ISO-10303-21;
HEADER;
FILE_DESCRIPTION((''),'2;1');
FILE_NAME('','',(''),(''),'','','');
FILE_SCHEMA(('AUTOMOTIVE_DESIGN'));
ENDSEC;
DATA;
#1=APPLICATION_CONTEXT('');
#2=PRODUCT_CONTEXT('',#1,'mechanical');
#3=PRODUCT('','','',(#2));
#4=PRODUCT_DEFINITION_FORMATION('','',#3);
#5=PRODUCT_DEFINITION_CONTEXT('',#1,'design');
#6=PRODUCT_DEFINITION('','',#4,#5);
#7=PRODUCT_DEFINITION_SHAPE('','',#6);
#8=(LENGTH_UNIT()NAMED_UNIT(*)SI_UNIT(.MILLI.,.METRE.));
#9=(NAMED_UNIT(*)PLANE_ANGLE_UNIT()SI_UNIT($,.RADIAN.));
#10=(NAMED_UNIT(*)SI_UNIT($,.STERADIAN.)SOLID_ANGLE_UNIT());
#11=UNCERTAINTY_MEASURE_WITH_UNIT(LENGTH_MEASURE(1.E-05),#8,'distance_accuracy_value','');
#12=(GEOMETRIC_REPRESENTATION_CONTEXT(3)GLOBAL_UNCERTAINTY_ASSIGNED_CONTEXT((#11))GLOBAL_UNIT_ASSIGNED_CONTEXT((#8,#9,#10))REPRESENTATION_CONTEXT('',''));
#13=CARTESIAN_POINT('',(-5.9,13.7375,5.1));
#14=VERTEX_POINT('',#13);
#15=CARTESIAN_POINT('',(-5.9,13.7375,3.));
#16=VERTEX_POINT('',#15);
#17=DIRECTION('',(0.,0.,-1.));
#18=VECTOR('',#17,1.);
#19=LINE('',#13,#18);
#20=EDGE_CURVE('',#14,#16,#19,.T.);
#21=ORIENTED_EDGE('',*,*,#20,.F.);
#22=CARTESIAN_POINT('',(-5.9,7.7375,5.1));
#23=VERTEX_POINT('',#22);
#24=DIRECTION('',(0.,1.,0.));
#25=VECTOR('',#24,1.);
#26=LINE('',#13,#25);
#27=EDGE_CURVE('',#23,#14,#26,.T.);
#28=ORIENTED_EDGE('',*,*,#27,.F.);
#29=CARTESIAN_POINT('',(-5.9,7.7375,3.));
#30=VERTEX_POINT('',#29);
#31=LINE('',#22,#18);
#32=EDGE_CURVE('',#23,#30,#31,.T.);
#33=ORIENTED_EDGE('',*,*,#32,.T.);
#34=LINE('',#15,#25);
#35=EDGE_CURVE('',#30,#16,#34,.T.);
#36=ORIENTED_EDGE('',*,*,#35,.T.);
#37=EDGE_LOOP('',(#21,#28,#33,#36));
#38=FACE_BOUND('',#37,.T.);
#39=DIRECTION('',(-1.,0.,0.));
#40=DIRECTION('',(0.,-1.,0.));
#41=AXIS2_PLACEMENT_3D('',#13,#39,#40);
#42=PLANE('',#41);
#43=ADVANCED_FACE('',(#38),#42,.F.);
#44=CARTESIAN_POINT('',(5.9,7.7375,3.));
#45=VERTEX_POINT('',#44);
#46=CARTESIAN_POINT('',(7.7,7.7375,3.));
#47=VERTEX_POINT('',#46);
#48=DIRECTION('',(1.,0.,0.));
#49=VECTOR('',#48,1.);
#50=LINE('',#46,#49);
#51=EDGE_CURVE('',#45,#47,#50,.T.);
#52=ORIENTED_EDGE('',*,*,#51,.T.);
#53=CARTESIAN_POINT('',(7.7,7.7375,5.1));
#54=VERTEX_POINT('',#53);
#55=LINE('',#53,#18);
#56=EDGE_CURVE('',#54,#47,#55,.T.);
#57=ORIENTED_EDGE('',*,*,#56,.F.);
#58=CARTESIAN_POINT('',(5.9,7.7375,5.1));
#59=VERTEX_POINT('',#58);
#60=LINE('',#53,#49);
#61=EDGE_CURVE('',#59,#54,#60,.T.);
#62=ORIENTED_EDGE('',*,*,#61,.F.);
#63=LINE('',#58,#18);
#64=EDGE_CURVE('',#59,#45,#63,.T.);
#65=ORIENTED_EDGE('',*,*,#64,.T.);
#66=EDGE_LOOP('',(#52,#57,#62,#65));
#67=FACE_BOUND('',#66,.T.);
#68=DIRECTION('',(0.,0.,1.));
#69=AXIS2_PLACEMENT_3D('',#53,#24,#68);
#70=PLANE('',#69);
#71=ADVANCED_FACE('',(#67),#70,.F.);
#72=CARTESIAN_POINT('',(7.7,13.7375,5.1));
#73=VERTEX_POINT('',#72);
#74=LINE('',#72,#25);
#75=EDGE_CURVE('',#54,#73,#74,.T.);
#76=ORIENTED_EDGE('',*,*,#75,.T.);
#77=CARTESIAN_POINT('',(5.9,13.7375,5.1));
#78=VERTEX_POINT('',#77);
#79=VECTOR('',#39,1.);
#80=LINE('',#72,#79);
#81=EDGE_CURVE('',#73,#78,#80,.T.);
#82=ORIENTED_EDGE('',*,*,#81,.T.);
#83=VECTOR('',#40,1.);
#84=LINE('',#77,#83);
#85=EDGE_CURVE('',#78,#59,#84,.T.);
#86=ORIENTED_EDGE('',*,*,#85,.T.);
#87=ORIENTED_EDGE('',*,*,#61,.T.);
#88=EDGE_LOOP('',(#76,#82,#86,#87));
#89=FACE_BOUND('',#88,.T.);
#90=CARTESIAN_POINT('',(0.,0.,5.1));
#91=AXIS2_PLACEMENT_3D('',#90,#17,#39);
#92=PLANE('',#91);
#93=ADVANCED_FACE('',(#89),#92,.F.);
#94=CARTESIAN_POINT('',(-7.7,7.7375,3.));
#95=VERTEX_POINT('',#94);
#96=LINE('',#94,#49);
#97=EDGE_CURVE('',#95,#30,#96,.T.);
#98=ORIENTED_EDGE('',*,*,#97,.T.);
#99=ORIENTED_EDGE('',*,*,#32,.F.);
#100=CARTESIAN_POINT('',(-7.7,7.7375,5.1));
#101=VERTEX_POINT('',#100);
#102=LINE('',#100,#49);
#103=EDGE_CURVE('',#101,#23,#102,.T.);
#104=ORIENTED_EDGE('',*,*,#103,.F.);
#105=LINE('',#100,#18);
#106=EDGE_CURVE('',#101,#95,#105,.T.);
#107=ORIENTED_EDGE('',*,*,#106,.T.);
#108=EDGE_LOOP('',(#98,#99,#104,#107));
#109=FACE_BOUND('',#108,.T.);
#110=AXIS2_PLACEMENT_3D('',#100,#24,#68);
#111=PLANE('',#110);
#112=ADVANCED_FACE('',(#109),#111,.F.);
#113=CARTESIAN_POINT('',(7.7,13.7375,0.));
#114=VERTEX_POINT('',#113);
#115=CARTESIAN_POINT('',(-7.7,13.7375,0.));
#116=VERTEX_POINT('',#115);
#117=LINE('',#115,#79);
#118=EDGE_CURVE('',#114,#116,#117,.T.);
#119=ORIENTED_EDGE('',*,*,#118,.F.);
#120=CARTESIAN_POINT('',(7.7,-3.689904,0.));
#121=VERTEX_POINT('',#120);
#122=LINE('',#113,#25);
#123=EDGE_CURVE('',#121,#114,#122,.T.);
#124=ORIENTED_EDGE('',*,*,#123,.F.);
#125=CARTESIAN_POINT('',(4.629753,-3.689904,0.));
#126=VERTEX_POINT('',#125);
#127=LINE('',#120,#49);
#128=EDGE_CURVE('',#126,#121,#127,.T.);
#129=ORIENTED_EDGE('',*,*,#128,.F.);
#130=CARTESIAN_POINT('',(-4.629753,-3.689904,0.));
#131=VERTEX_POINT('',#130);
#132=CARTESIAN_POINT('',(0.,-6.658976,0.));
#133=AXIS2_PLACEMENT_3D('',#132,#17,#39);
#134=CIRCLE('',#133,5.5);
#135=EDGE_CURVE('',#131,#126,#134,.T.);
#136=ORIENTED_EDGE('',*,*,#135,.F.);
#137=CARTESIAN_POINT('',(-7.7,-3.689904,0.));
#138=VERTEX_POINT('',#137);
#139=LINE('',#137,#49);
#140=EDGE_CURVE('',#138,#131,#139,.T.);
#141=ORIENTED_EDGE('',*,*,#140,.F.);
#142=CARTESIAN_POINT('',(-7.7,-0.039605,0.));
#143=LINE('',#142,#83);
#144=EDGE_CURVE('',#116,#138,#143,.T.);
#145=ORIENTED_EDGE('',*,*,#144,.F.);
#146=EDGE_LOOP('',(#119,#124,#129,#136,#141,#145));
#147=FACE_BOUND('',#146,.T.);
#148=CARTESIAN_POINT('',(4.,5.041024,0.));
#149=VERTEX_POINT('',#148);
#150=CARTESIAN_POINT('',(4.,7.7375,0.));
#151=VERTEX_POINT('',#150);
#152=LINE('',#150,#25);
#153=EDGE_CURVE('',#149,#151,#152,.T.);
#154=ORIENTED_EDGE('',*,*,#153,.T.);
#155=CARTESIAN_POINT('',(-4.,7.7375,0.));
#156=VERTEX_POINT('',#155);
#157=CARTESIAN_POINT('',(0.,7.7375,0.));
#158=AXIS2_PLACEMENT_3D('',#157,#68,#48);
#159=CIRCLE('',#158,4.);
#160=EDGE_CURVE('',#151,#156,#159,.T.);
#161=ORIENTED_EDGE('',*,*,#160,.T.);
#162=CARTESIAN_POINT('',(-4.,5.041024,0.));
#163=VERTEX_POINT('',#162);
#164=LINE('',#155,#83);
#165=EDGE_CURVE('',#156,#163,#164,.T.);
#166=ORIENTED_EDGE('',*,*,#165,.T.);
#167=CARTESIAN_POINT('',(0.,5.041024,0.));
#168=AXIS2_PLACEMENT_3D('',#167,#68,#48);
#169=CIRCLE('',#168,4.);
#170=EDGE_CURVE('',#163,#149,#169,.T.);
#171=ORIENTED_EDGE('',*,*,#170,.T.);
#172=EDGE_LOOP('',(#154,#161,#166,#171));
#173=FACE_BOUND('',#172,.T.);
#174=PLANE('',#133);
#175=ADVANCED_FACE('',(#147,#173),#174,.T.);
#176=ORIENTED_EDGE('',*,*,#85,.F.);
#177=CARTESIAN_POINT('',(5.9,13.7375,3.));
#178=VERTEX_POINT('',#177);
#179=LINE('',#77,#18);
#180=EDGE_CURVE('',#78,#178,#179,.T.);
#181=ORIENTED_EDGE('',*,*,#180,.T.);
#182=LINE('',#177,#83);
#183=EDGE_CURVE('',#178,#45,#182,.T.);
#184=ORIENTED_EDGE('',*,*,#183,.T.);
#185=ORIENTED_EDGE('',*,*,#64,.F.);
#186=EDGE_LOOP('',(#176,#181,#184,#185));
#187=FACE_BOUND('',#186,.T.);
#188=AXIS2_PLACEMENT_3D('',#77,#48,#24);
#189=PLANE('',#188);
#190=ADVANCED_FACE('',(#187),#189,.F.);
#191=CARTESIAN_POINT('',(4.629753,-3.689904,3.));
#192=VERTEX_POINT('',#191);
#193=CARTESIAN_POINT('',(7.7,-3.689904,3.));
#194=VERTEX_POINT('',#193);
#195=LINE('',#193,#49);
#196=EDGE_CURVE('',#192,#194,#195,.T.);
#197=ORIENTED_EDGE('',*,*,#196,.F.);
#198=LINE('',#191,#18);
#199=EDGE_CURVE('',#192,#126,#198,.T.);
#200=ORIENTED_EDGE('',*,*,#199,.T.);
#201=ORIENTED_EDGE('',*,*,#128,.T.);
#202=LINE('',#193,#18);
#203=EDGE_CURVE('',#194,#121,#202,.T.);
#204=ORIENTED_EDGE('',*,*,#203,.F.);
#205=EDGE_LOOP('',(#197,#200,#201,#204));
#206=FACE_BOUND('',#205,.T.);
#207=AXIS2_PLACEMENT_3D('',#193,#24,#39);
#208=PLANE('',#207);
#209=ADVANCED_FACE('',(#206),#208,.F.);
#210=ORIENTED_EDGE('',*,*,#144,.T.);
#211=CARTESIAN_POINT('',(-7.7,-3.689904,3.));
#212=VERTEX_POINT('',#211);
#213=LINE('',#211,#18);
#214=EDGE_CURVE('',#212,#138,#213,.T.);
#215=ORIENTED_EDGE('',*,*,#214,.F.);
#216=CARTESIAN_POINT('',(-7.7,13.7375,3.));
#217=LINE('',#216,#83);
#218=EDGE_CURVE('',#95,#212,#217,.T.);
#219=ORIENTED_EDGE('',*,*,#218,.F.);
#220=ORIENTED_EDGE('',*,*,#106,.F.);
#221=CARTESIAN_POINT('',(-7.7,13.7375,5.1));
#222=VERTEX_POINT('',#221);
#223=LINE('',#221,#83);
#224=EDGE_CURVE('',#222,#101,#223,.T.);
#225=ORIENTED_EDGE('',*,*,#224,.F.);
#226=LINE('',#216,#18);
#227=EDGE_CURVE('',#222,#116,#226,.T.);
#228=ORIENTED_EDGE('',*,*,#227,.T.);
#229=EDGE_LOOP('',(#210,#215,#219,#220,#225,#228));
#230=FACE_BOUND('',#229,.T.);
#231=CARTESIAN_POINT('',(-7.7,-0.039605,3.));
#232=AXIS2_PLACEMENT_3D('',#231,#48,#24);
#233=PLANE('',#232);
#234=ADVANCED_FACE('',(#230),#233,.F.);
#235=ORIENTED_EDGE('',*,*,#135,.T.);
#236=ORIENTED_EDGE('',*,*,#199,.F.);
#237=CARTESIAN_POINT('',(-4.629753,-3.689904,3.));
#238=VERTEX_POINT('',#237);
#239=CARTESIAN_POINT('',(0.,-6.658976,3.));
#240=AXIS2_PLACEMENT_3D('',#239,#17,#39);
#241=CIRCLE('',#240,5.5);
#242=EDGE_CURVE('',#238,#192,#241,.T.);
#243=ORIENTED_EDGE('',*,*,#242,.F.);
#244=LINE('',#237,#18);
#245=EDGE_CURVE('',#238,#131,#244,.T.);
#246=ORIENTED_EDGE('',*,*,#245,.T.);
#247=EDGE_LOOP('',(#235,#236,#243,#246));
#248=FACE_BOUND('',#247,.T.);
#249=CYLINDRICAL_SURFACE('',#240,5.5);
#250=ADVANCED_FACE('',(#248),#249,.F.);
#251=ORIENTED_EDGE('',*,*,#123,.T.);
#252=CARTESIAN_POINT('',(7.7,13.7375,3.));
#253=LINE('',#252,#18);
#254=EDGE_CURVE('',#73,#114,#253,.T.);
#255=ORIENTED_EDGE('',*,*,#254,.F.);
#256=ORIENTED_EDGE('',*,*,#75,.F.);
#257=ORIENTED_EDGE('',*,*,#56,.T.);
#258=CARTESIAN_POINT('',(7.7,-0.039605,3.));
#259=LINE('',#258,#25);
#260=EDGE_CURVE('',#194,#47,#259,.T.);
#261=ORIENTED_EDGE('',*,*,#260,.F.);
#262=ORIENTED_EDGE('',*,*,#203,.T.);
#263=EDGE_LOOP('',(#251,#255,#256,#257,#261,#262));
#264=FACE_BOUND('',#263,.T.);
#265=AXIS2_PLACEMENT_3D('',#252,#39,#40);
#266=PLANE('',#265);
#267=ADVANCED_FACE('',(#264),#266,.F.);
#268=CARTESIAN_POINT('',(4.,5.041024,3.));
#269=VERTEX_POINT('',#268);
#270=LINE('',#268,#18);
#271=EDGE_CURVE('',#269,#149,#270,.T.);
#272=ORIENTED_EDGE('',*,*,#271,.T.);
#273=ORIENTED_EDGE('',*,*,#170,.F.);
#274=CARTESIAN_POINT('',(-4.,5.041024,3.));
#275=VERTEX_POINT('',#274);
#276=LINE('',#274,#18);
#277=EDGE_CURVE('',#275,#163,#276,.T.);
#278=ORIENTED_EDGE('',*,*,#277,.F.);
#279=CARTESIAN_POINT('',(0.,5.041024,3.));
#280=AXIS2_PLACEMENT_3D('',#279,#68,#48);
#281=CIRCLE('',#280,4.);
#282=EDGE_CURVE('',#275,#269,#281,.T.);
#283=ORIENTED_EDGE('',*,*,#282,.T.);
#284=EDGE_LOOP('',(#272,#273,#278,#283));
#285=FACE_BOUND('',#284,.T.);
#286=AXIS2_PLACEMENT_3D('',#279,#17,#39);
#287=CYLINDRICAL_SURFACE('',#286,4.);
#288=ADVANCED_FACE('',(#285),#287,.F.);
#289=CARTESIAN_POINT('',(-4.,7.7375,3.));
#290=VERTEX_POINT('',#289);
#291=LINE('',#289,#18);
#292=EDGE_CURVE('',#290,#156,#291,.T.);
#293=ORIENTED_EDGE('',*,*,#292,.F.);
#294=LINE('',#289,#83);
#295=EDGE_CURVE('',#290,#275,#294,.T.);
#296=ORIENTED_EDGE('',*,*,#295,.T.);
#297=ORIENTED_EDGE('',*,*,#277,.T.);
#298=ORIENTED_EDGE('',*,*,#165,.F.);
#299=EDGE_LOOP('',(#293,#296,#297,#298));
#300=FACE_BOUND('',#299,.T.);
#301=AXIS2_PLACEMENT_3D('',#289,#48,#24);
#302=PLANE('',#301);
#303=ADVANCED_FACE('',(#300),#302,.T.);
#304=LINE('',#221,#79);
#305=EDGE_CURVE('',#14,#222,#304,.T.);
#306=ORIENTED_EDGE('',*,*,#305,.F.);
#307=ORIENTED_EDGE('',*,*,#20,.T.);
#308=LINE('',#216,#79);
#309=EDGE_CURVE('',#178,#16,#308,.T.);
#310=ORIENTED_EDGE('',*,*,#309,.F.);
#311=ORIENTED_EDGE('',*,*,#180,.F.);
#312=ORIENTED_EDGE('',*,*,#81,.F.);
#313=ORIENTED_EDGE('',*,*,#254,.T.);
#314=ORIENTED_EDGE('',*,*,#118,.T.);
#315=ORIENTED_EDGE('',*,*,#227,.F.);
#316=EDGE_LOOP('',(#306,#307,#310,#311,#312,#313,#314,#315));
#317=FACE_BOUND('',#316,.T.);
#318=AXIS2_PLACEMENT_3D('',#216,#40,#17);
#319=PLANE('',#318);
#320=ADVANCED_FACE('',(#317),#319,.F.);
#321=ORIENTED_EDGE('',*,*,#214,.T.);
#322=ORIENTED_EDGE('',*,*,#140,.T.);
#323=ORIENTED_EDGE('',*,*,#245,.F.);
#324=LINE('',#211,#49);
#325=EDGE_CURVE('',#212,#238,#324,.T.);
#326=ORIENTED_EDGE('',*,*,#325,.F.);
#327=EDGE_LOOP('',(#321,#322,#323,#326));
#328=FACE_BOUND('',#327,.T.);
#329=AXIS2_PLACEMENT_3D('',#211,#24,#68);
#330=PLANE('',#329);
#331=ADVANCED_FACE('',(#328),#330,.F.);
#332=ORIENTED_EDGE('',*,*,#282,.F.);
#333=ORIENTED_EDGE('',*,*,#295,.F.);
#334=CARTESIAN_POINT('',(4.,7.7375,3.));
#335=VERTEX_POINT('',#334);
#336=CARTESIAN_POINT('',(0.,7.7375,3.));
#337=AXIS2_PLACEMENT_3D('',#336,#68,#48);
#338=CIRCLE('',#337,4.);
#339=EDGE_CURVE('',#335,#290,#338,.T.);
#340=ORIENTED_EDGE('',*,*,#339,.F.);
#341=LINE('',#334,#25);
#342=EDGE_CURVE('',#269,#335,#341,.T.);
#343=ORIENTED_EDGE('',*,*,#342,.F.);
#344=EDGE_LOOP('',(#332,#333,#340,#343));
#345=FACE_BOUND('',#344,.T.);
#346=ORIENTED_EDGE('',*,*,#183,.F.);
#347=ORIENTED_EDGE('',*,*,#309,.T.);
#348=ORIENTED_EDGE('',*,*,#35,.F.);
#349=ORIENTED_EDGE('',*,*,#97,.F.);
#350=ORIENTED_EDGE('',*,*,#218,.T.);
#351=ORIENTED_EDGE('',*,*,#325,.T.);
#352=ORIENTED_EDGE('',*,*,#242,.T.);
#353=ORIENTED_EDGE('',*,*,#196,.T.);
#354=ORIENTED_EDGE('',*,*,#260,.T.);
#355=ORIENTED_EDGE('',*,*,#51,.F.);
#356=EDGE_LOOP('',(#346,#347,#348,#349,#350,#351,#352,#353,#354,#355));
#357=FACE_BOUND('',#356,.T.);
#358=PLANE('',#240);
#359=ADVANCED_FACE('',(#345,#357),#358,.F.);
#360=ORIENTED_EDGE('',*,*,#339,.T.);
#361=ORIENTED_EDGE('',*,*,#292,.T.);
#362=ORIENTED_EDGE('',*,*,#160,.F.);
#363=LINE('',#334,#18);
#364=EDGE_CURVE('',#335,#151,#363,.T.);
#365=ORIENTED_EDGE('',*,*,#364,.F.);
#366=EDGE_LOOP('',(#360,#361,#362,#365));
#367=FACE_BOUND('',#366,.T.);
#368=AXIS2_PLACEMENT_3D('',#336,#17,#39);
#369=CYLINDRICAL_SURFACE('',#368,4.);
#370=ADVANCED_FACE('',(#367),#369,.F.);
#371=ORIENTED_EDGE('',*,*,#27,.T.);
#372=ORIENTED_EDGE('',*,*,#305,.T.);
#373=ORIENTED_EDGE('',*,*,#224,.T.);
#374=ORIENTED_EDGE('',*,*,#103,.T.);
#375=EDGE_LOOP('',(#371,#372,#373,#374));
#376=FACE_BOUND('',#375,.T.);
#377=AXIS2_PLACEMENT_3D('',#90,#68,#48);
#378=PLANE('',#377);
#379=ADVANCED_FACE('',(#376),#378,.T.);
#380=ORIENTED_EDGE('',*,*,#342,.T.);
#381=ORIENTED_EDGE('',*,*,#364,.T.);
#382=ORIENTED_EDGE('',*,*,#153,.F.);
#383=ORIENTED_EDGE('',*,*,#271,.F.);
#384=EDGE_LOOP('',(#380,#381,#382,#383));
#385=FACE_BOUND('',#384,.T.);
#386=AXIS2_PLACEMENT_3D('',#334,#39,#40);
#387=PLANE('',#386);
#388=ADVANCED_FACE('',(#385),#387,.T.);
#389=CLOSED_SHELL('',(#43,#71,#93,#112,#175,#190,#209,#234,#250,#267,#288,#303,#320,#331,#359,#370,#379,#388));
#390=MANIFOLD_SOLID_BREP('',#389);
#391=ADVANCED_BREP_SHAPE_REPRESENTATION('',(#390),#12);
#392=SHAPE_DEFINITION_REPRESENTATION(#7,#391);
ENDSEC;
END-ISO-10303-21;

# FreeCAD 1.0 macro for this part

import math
import FreeCAD as App
import Part
import Sketcher

V = App.Vector


def add_polygon(sketch, points):
    """Adds a closed chain of lines whose ends are joined by coincident constraints."""
    first, n = sketch.GeometryCount, len(points)
    for a, b in zip(points, points[1:] + points[:1]):
        sketch.addGeometry(Part.LineSegment(App.Vector(*a, 0), App.Vector(*b, 0)), False)
    for i in range(n):
        sketch.addConstraint(Sketcher.Constraint("Coincident", first + i, 2, first + (i + 1) % n, 1))

doc = App.newDocument("Part")
body = doc.addObject("PartDesign::Body", "Body")

# Sketch on XY plane
sketch1 = doc.addObject("Sketcher::SketchObject", "Sketch")
body.addObject(sketch1)
sketch1.AttachmentSupport = (doc.XY_Plane, [""])
sketch1.MapMode = "FlatFace"
sketch1.addGeometry([
    Part.LineSegment(V(7.7, 13.7, 0), V(-7.7, 13.7, 0)),  # 0
    Part.LineSegment(V(-7.7, 13.7, 0), V(-7.7, -3.7, 0)),  # 1
    Part.LineSegment(V(-7.7, -3.7, 0), V(-4.6, -3.7, 0)),  # 2
    Part.ArcOfCircle(Part.Circle(V(0, -6.7, 0), V(0, 0, 1), 5.5), math.radians(33), math.radians(147)),  # 3
    Part.LineSegment(V(4.6, -3.7, 0), V(7.7, -3.7, 0)),  # 4
    Part.LineSegment(V(7.7, -3.7, 0), V(7.7, 13.7, 0)),  # 5
    Part.LineSegment(V(4, 7.7, 0), V(4, 5, 0)),  # 6
    Part.ArcOfCircle(Part.Circle(V(0, 5, 0), V(0, 0, 1), 4), math.radians(180), math.radians(360)),  # 7
    Part.LineSegment(V(-4, 5, 0), V(-4, 7.7, 0)),  # 8
    Part.ArcOfCircle(Part.Circle(V(0, 7.7, 0), V(0, 0, 1), 4), math.radians(0), math.radians(180)),  # 9
], False)
sketch1.addConstraint([
    Sketcher.Constraint("Coincident", 0, 2, 1, 1),
    Sketcher.Constraint("Coincident", 1, 2, 2, 1),
    Sketcher.Constraint("Coincident", 2, 2, 3, 2),
    Sketcher.Constraint("Coincident", 3, 1, 4, 1),
    Sketcher.Constraint("Coincident", 4, 2, 5, 1),
    Sketcher.Constraint("Coincident", 5, 2, 0, 1),
    Sketcher.Constraint("Tangent", 6, 2, 7, 2),
    Sketcher.Constraint("Tangent", 7, 1, 8, 1),
    Sketcher.Constraint("Tangent", 8, 2, 9, 2),
    Sketcher.Constraint("Tangent", 9, 1, 6, 1),
    Sketcher.Constraint("Horizontal", 0),
    Sketcher.Constraint("Vertical", 1),
    Sketcher.Constraint("Horizontal", 2),
    Sketcher.Constraint("Horizontal", 4),
    Sketcher.Constraint("Vertical", 5),
    Sketcher.Constraint("Vertical", 6),
    Sketcher.Constraint("Vertical", 8),
    Sketcher.Constraint("Symmetric", 2, 2, 3, 1, -2),
    Sketcher.Constraint("PointOnObject", 7, 3, -2),
    Sketcher.Constraint("Equal", 2, 4),
    Sketcher.Constraint("Radius", 7, 4.0),
    Sketcher.Constraint("Radius", 3, 5.5),
    Sketcher.Constraint("DistanceX", 0, 2, 0, 1, 15.4),
    Sketcher.Constraint("DistanceY", 9, 3, 0, 2, 6.0),
    Sketcher.Constraint("DistanceY", 3, 3, 7, 3, 11.7),
    Sketcher.Constraint("DistanceY", -1, 1, 9, 3, 7.7375),
    Sketcher.Constraint("DistanceX", 2, 1, 2, 2, 3.070247),
    Sketcher.Constraint("DistanceY", 1, 2, 1, 1, 17.427404),
])
pad1 = doc.addObject("PartDesign::Pad", "Pad")
body.addObject(pad1)
pad1.Profile = sketch1
pad1.Length = 3

# Sketch on XY plane
sketch2 = doc.addObject("Sketcher::SketchObject", "Sketch001")
body.addObject(sketch2)
sketch2.AttachmentSupport = (doc.XY_Plane, [""])
sketch2.MapMode = "FlatFace"
sketch2.AttachmentOffset = App.Placement(V(0, 0, 3), App.Rotation())
add_polygon(sketch2, [(-7.7, 13.7), (-7.7, 7.7), (-5.9, 7.7), (-5.9, 13.7)])  # lines 0-3
add_polygon(sketch2, [(5.9, 13.7), (5.9, 7.7), (7.7, 7.7), (7.7, 13.7)])  # lines 4-7
sketch2.addConstraint([
    Sketcher.Constraint("Vertical", 0),
    Sketcher.Constraint("Horizontal", 1),
    Sketcher.Constraint("Vertical", 2),
    Sketcher.Constraint("Horizontal", 3),
    Sketcher.Constraint("Vertical", 4),
    Sketcher.Constraint("Horizontal", 5),
    Sketcher.Constraint("Vertical", 6),
    Sketcher.Constraint("Horizontal", 7),
    Sketcher.Constraint("Symmetric", 1, 2, 4, 2, -2),
    Sketcher.Constraint("Symmetric", 3, 2, 6, 2, -2),
    Sketcher.Constraint("DistanceY", 0, 2, 0, 1, 6.0),
    Sketcher.Constraint("DistanceX", 1, 1, 1, 2, 1.8),
    Sketcher.Constraint("DistanceX", 0, 2, -1, 1, 7.7),
    Sketcher.Constraint("DistanceY", -1, 1, 0, 2, 7.7375),
])
pad2 = doc.addObject("PartDesign::Pad", "Pad001")
body.addObject(pad2)
pad2.Profile = sketch2
pad2.Length = 2.1

doc.recompute()
